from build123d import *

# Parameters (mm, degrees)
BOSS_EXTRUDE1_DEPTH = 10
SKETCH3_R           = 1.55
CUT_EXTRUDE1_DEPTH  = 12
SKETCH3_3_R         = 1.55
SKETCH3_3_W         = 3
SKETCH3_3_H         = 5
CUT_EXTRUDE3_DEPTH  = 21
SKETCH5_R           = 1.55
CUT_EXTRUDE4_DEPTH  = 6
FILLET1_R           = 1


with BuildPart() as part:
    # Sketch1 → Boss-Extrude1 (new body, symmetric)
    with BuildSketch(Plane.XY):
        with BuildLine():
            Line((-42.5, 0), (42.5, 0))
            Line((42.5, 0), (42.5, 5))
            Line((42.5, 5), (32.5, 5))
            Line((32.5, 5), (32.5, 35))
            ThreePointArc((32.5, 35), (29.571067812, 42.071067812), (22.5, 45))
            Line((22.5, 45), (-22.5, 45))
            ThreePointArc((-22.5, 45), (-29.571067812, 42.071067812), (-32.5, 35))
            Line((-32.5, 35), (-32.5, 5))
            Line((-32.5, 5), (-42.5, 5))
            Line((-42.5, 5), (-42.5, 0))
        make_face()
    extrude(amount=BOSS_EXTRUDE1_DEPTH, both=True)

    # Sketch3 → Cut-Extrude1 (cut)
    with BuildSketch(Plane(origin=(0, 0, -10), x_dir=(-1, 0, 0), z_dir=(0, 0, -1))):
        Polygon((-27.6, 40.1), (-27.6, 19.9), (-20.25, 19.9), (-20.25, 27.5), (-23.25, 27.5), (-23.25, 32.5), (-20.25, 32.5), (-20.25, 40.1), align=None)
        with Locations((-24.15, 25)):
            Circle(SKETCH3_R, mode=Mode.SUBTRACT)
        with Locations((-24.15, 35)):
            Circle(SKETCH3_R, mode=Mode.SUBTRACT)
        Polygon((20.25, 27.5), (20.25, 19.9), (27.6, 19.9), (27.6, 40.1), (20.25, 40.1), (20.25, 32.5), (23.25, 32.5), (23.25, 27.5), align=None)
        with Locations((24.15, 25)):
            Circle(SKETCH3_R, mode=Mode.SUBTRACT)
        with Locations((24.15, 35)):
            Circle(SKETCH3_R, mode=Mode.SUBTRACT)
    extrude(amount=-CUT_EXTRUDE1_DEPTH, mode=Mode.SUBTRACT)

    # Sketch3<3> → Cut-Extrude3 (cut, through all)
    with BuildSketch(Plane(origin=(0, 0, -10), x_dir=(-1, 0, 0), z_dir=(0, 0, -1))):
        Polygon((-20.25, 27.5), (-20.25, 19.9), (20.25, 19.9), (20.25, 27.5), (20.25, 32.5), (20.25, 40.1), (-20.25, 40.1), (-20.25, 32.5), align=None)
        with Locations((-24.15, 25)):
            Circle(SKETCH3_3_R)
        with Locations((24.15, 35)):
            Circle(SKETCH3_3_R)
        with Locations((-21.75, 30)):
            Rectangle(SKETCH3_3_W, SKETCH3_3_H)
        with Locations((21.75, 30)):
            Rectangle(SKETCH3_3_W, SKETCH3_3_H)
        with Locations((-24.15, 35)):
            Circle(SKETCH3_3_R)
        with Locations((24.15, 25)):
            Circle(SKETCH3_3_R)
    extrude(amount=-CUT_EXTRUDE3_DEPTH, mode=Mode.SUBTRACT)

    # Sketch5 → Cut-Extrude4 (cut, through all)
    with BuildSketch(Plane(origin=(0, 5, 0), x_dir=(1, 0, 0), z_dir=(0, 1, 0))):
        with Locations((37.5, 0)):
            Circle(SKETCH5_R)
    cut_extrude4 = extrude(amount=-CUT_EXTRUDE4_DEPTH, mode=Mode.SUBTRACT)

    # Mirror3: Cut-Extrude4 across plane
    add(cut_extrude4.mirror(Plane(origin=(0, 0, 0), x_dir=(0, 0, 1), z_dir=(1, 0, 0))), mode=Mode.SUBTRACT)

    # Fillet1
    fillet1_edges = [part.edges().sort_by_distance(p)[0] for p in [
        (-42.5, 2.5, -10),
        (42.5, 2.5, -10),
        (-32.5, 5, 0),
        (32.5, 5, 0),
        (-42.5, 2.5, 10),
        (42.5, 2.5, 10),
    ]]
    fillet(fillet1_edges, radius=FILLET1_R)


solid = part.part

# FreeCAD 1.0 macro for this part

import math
import FreeCAD as App
import Part
import Sketcher
from FreeCAD import Vector
Q = App.Units.Quantity


def edges_at(feature, points):
    """Names of the edges that pass closest to the given points."""
    edges = feature.Shape.Edges
    near = lambda p: min(range(len(edges)), key=lambda i: edges[i].distToShape(Part.Vertex(*p))[0])
    return sorted({f"Edge{near(p) + 1}" for p in points})

doc = App.newDocument("Part")
body = doc.addObject("PartDesign::Body", "Body")

# Sketch on XY plane
sketch1 = doc.addObject("Sketcher::SketchObject", "Sketch")
body.addObject(sketch1)
sketch1.AttachmentSupport = (doc.XY_Plane, [""])
sketch1.MapMode = "FlatFace"
sketch1.addGeometry(Part.LineSegment(Vector(-42, 0, 0), Vector(42, 0, 0)), False)
sketch1.addGeometry(Part.LineSegment(Vector(42, 0, 0), Vector(42, 5, 0)), False)
sketch1.addGeometry(Part.LineSegment(Vector(42, 5, 0), Vector(32, 5, 0)), False)
sketch1.addGeometry(Part.LineSegment(Vector(32, 5, 0), Vector(32, 35, 0)), False)
sketch1.addGeometry(Part.ArcOfCircle(Part.Circle(Vector(22, 35, 0), Vector(0, 0, 1), 10), math.radians(0), math.radians(90)), False)
sketch1.addGeometry(Part.LineSegment(Vector(22, 45, 0), Vector(-22, 45, 0)), False)
sketch1.addGeometry(Part.ArcOfCircle(Part.Circle(Vector(-22, 35, 0), Vector(0, 0, 1), 10), math.radians(90), math.radians(180)), False)
sketch1.addGeometry(Part.LineSegment(Vector(-32, 35, 0), Vector(-32, 5, 0)), False)
sketch1.addGeometry(Part.LineSegment(Vector(-32, 5, 0), Vector(-42, 5, 0)), False)
sketch1.addGeometry(Part.LineSegment(Vector(-42, 5, 0), Vector(-42, 0, 0)), False)
sketch1.addConstraint(Sketcher.Constraint("Coincident", 0, 2, 1, 1))
sketch1.addConstraint(Sketcher.Constraint("Coincident", 1, 2, 2, 1))
sketch1.addConstraint(Sketcher.Constraint("Coincident", 2, 2, 3, 1))
sketch1.addConstraint(Sketcher.Constraint("Tangent", 3, 2, 4, 1))
sketch1.addConstraint(Sketcher.Constraint("Tangent", 4, 2, 5, 1))
sketch1.addConstraint(Sketcher.Constraint("Tangent", 5, 2, 6, 1))
sketch1.addConstraint(Sketcher.Constraint("Tangent", 6, 2, 7, 1))
sketch1.addConstraint(Sketcher.Constraint("Coincident", 7, 2, 8, 1))
sketch1.addConstraint(Sketcher.Constraint("Coincident", 8, 2, 9, 1))
sketch1.addConstraint(Sketcher.Constraint("Coincident", 9, 2, 0, 1))
sketch1.addConstraint(Sketcher.Constraint("Horizontal", 0))
sketch1.addConstraint(Sketcher.Constraint("Vertical", 1))
sketch1.addConstraint(Sketcher.Constraint("Horizontal", 2))
sketch1.addConstraint(Sketcher.Constraint("Vertical", 3))
sketch1.addConstraint(Sketcher.Constraint("Horizontal", 5))
sketch1.addConstraint(Sketcher.Constraint("Vertical", 7))
sketch1.addConstraint(Sketcher.Constraint("Horizontal", 8))
sketch1.addConstraint(Sketcher.Constraint("Vertical", 9))
sketch1.addConstraint(Sketcher.Constraint("Equal", 4, 6))
sketch1.addConstraint(Sketcher.Constraint("Symmetric", 0, 2, 9, 2, -1, 1))
sketch1.addConstraint(Sketcher.Constraint("Symmetric", 2, 2, 7, 2, -2))
sketch1.addConstraint(Sketcher.Constraint("Radius", 4, Q("10 mm")))
sketch1.addConstraint(Sketcher.Constraint("DistanceX", 0, 1, 0, 2, Q("85 mm")))
sketch1.addConstraint(Sketcher.Constraint("DistanceX", 2, 2, 2, 1, Q("10 mm")))
sketch1.addConstraint(Sketcher.Constraint("DistanceY", 1, 1, 1, 2, Q("5 mm")))
sketch1.addConstraint(Sketcher.Constraint("DistanceY", 3, 1, 3, 2, Q("30 mm")))
pad1 = doc.addObject("PartDesign::Pad", "Pad")
body.addObject(pad1)
pad1.Profile = sketch1
pad1.Length = 20
pad1.Midplane = True

# Sketch on XY plane
sketch2 = doc.addObject("Sketcher::SketchObject", "Sketch001")
body.addObject(sketch2)
sketch2.AttachmentSupport = (doc.XY_Plane, [""])
sketch2.MapMode = "FlatFace"
sketch2.AttachmentOffset = App.Placement(Vector(0, 0, -10), App.Rotation())
sketch2.addGeometry(Part.LineSegment(Vector(27.6, 40.1, 0), Vector(27.6, 19.9, 0)), False)
sketch2.addGeometry(Part.LineSegment(Vector(27.6, 19.9, 0), Vector(20.2, 19.9, 0)), False)
sketch2.addGeometry(Part.LineSegment(Vector(20.2, 19.9, 0), Vector(20.2, 27.5, 0)), False)
sketch2.addGeometry(Part.LineSegment(Vector(20.2, 27.5, 0), Vector(23.2, 27.5, 0)), False)
sketch2.addGeometry(Part.LineSegment(Vector(23.2, 27.5, 0), Vector(23.2, 32.5, 0)), False)
sketch2.addGeometry(Part.LineSegment(Vector(23.2, 32.5, 0), Vector(20.2, 32.5, 0)), False)
sketch2.addGeometry(Part.LineSegment(Vector(20.2, 32.5, 0), Vector(20.2, 40.1, 0)), False)
sketch2.addGeometry(Part.LineSegment(Vector(20.2, 40.1, 0), Vector(27.6, 40.1, 0)), False)
sketch2.addGeometry(Part.Circle(Vector(24.1, 25, 0), Vector(0, 0, 1), 1.6), False)
sketch2.addGeometry(Part.Circle(Vector(24.1, 35, 0), Vector(0, 0, 1), 1.6), False)
sketch2.addGeometry(Part.LineSegment(Vector(-20.2, 27.5, 0), Vector(-20.2, 19.9, 0)), False)
sketch2.addGeometry(Part.LineSegment(Vector(-20.2, 19.9, 0), Vector(-27.6, 19.9, 0)), False)
sketch2.addGeometry(Part.LineSegment(Vector(-27.6, 19.9, 0), Vector(-27.6, 40.1, 0)), False)
sketch2.addGeometry(Part.LineSegment(Vector(-27.6, 40.1, 0), Vector(-20.2, 40.1, 0)), False)
sketch2.addGeometry(Part.LineSegment(Vector(-20.2, 40.1, 0), Vector(-20.2, 32.5, 0)), False)
sketch2.addGeometry(Part.LineSegment(Vector(-20.2, 32.5, 0), Vector(-23.2, 32.5, 0)), False)
sketch2.addGeometry(Part.LineSegment(Vector(-23.2, 32.5, 0), Vector(-23.2, 27.5, 0)), False)
sketch2.addGeometry(Part.LineSegment(Vector(-23.2, 27.5, 0), Vector(-20.2, 27.5, 0)), False)
sketch2.addGeometry(Part.Circle(Vector(-24.1, 25, 0), Vector(0, 0, 1), 1.6), False)
sketch2.addGeometry(Part.Circle(Vector(-24.1, 35, 0), Vector(0, 0, 1), 1.6), False)
sketch2.addConstraint(Sketcher.Constraint("Coincident", 0, 2, 1, 1))
sketch2.addConstraint(Sketcher.Constraint("Coincident", 1, 2, 2, 1))
sketch2.addConstraint(Sketcher.Constraint("Coincident", 2, 2, 3, 1))
sketch2.addConstraint(Sketcher.Constraint("Coincident", 3, 2, 4, 1))
sketch2.addConstraint(Sketcher.Constraint("Coincident", 4, 2, 5, 1))
sketch2.addConstraint(Sketcher.Constraint("Coincident", 5, 2, 6, 1))
sketch2.addConstraint(Sketcher.Constraint("Coincident", 6, 2, 7, 1))
sketch2.addConstraint(Sketcher.Constraint("Coincident", 7, 2, 0, 1))
sketch2.addConstraint(Sketcher.Constraint("Coincident", 10, 2, 11, 1))
sketch2.addConstraint(Sketcher.Constraint("Coincident", 11, 2, 12, 1))
sketch2.addConstraint(Sketcher.Constraint("Coincident", 12, 2, 13, 1))
sketch2.addConstraint(Sketcher.Constraint("Coincident", 13, 2, 14, 1))
sketch2.addConstraint(Sketcher.Constraint("Coincident", 14, 2, 15, 1))
sketch2.addConstraint(Sketcher.Constraint("Coincident", 15, 2, 16, 1))
sketch2.addConstraint(Sketcher.Constraint("Coincident", 16, 2, 17, 1))
sketch2.addConstraint(Sketcher.Constraint("Coincident", 17, 2, 10, 1))
sketch2.addConstraint(Sketcher.Constraint("Vertical", 0))
sketch2.addConstraint(Sketcher.Constraint("Horizontal", 1))
sketch2.addConstraint(Sketcher.Constraint("Vertical", 2))
sketch2.addConstraint(Sketcher.Constraint("Horizontal", 3))
sketch2.addConstraint(Sketcher.Constraint("Vertical", 4))
sketch2.addConstraint(Sketcher.Constraint("Horizontal", 5))
sketch2.addConstraint(Sketcher.Constraint("Vertical", 6))
sketch2.addConstraint(Sketcher.Constraint("Horizontal", 7))
sketch2.addConstraint(Sketcher.Constraint("Vertical", 10))
sketch2.addConstraint(Sketcher.Constraint("Horizontal", 11))
sketch2.addConstraint(Sketcher.Constraint("Vertical", 12))
sketch2.addConstraint(Sketcher.Constraint("Horizontal", 13))
sketch2.addConstraint(Sketcher.Constraint("Vertical", 14))
sketch2.addConstraint(Sketcher.Constraint("Horizontal", 15))
sketch2.addConstraint(Sketcher.Constraint("Vertical", 16))
sketch2.addConstraint(Sketcher.Constraint("Horizontal", 17))
sketch2.addConstraint(Sketcher.Constraint("Equal", 8, 9))
sketch2.addConstraint(Sketcher.Constraint("Equal", 9, 18))
sketch2.addConstraint(Sketcher.Constraint("Equal", 18, 19))
sketch2.addConstraint(Sketcher.Constraint("Symmetric", 8, 3, 18, 3, -2))
sketch2.addConstraint(Sketcher.Constraint("Symmetric", 9, 3, 19, 3, -2))
sketch2.addConstraint(Sketcher.Constraint("Symmetric", 1, 2, 10, 2, -2))
sketch2.addConstraint(Sketcher.Constraint("Symmetric", 7, 2, 12, 2, -2))
sketch2.addConstraint(Sketcher.Constraint("Symmetric", 5, 2, 14, 2, -2))
sketch2.addConstraint(Sketcher.Constraint("Symmetric", 3, 2, 16, 2, -2))
sketch2.addConstraint(Sketcher.Constraint("Vertical", 8, 3, 9, 3))
sketch2.addConstraint(Sketcher.Constraint("Vertical", 2, 2, 5, 2))
sketch2.addConstraint(Sketcher.Constraint("Equal", 2, 6))
sketch2.addConstraint(Sketcher.Constraint("Diameter", 8, Q("3.1 mm")))
sketch2.addConstraint(Sketcher.Constraint("DistanceX", 3, 1, 3, 2, Q("3 mm")))
sketch2.addConstraint(Sketcher.Constraint("DistanceY", 4, 1, 4, 2, Q("5 mm")))
sketch2.addConstraint(Sketcher.Constraint("DistanceY", 0, 2, 0, 1, Q("20.2 mm")))
sketch2.addConstraint(Sketcher.Constraint("DistanceY", -1, 1, 8, 3, Q("25 mm")))
sketch2.addConstraint(Sketcher.Constraint("DistanceY", -1, 1, 9, 3, Q("35 mm")))
sketch2.addConstraint(Sketcher.Constraint("DistanceX", 1, 2, 1, 1, Q("7.35 mm")))
sketch2.addConstraint(Sketcher.Constraint("DistanceX", -1, 1, 0, 2, Q("27.6 mm")))
sketch2.addConstraint(Sketcher.Constraint("DistanceY", -1, 1, 0, 2, Q("19.9 mm")))
sketch2.addConstraint(Sketcher.Constraint("DistanceX", 18, 3, 8, 3, Q("48.3 mm")))
pocket1 = doc.addObject("PartDesign::Pocket", "Pocket")
body.addObject(pocket1)
pocket1.Profile = sketch2
pocket1.Length = 12
pocket1.Reversed = True

# Sketch on XY plane
sketch3 = doc.addObject("Sketcher::SketchObject", "Sketch002")
body.addObject(sketch3)
sketch3.AttachmentSupport = (doc.XY_Plane, [""])
sketch3.MapMode = "FlatFace"
sketch3.AttachmentOffset = App.Placement(Vector(0, 0, -10), App.Rotation())
sketch3.addGeometry(Part.LineSegment(Vector(20.2, 19.9, 0), Vector(-20.2, 19.9, 0)), False)
sketch3.addGeometry(Part.LineSegment(Vector(-20.2, 19.9, 0), Vector(-20.2, 27.5, 0)), False)
sketch3.addGeometry(Part.LineSegment(Vector(-20.2, 27.5, 0), Vector(-23.2, 27.5, 0)), False)
sketch3.addGeometry(Part.LineSegment(Vector(-23.2, 27.5, 0), Vector(-23.2, 32.5, 0)), False)
sketch3.addGeometry(Part.LineSegment(Vector(-23.2, 32.5, 0), Vector(-20.2, 32.5, 0)), False)
sketch3.addGeometry(Part.LineSegment(Vector(-20.2, 32.5, 0), Vector(-20.2, 40.1, 0)), False)
sketch3.addGeometry(Part.LineSegment(Vector(-20.2, 40.1, 0), Vector(20.2, 40.1, 0)), False)
sketch3.addGeometry(Part.LineSegment(Vector(20.2, 40.1, 0), Vector(20.2, 32.5, 0)), False)
sketch3.addGeometry(Part.LineSegment(Vector(20.2, 32.5, 0), Vector(23.2, 32.5, 0)), False)
sketch3.addGeometry(Part.LineSegment(Vector(23.2, 32.5, 0), Vector(23.2, 27.5, 0)), False)
sketch3.addGeometry(Part.LineSegment(Vector(23.2, 27.5, 0), Vector(20.2, 27.5, 0)), False)
sketch3.addGeometry(Part.LineSegment(Vector(20.2, 27.5, 0), Vector(20.2, 19.9, 0)), False)
sketch3.addGeometry(Part.Circle(Vector(24.1, 25, 0), Vector(0, 0, 1), 1.6), False)
sketch3.addGeometry(Part.Circle(Vector(-24.1, 35, 0), Vector(0, 0, 1), 1.6), False)
sketch3.addGeometry(Part.Circle(Vector(24.1, 35, 0), Vector(0, 0, 1), 1.6), False)
sketch3.addGeometry(Part.Circle(Vector(-24.1, 25, 0), Vector(0, 0, 1), 1.6), False)
sketch3.addConstraint(Sketcher.Constraint("Coincident", 0, 2, 1, 1))
sketch3.addConstraint(Sketcher.Constraint("Coincident", 1, 2, 2, 1))
sketch3.addConstraint(Sketcher.Constraint("Coincident", 2, 2, 3, 1))
sketch3.addConstraint(Sketcher.Constraint("Coincident", 3, 2, 4, 1))
sketch3.addConstraint(Sketcher.Constraint("Coincident", 4, 2, 5, 1))
sketch3.addConstraint(Sketcher.Constraint("Coincident", 5, 2, 6, 1))
sketch3.addConstraint(Sketcher.Constraint("Coincident", 6, 2, 7, 1))
sketch3.addConstraint(Sketcher.Constraint("Coincident", 7, 2, 8, 1))
sketch3.addConstraint(Sketcher.Constraint("Coincident", 8, 2, 9, 1))
sketch3.addConstraint(Sketcher.Constraint("Coincident", 9, 2, 10, 1))
sketch3.addConstraint(Sketcher.Constraint("Coincident", 10, 2, 11, 1))
sketch3.addConstraint(Sketcher.Constraint("Coincident", 11, 2, 0, 1))
sketch3.addConstraint(Sketcher.Constraint("Horizontal", 0))
sketch3.addConstraint(Sketcher.Constraint("Vertical", 1))
sketch3.addConstraint(Sketcher.Constraint("Horizontal", 2))
sketch3.addConstraint(Sketcher.Constraint("Vertical", 3))
sketch3.addConstraint(Sketcher.Constraint("Horizontal", 4))
sketch3.addConstraint(Sketcher.Constraint("Vertical", 5))
sketch3.addConstraint(Sketcher.Constraint("Horizontal", 6))
sketch3.addConstraint(Sketcher.Constraint("Vertical", 7))
sketch3.addConstraint(Sketcher.Constraint("Horizontal", 8))
sketch3.addConstraint(Sketcher.Constraint("Vertical", 9))
sketch3.addConstraint(Sketcher.Constraint("Horizontal", 10))
sketch3.addConstraint(Sketcher.Constraint("Vertical", 11))
sketch3.addConstraint(Sketcher.Constraint("Equal", 12, 13))
sketch3.addConstraint(Sketcher.Constraint("Equal", 13, 14))
sketch3.addConstraint(Sketcher.Constraint("Equal", 14, 15))
sketch3.addConstraint(Sketcher.Constraint("Symmetric", 13, 3, 14, 3, -2))
sketch3.addConstraint(Sketcher.Constraint("Symmetric", 12, 3, 15, 3, -2))
sketch3.addConstraint(Sketcher.Constraint("Symmetric", 4, 2, 7, 2, -2))
sketch3.addConstraint(Sketcher.Constraint("Symmetric", 2, 2, 9, 2, -2))
sketch3.addConstraint(Sketcher.Constraint("Vertical", 12, 3, 14, 3))
sketch3.addConstraint(Sketcher.Constraint("Vertical", 1, 2, 4, 2))
sketch3.addConstraint(Sketcher.Constraint("Vertical", 7, 2, 10, 2))
sketch3.addConstraint(Sketcher.Constraint("Equal", 1, 5))
sketch3.addConstraint(Sketcher.Constraint("Diameter", 12, Q("3.1 mm")))
sketch3.addConstraint(Sketcher.Constraint("DistanceX", 2, 2, 2, 1, Q("3 mm")))
sketch3.addConstraint(Sketcher.Constraint("DistanceY", 3, 1, 3, 2, Q("5 mm")))
sketch3.addConstraint(Sketcher.Constraint("DistanceX", 0, 2, 0, 1, Q("40.5 mm")))
sketch3.addConstraint(Sketcher.Constraint("DistanceY", 1, 1, 1, 2, Q("7.6 mm")))
sketch3.addConstraint(Sketcher.Constraint("DistanceY", -1, 1, 12, 3, Q("25 mm")))
sketch3.addConstraint(Sketcher.Constraint("DistanceY", -1, 1, 13, 3, Q("35 mm")))
sketch3.addConstraint(Sketcher.Constraint("DistanceY", -1, 1, 0, 2, Q("19.9 mm")))
sketch3.addConstraint(Sketcher.Constraint("DistanceX", 13, 3, 12, 3, Q("48.3 mm")))
pocket2 = doc.addObject("PartDesign::Pocket", "Pocket001")
body.addObject(pocket2)
pocket2.Profile = sketch3
pocket2.Type = "ThroughAll"
pocket2.Reversed = True

# Sketch on XZ plane
sketch4 = doc.addObject("Sketcher::SketchObject", "Sketch003")
body.addObject(sketch4)
sketch4.AttachmentSupport = (doc.XZ_Plane, [""])
sketch4.MapMode = "FlatFace"
sketch4.AttachmentOffset = App.Placement(Vector(0, 0, -5), App.Rotation())
sketch4.addGeometry(Part.Circle(Vector(37.5, 0, 0), Vector(0, 0, 1), 1.6), False)
sketch4.addConstraint(Sketcher.Constraint("PointOnObject", 0, 3, -1))
sketch4.addConstraint(Sketcher.Constraint("Diameter", 0, Q("3.1 mm")))
sketch4.addConstraint(Sketcher.Constraint("DistanceX", -1, 1, 0, 3, Q("37.5 mm")))
pocket3 = doc.addObject("PartDesign::Pocket", "Pocket002")
body.addObject(pocket3)
pocket3.Profile = sketch4
pocket3.Type = "ThroughAll"
pocket3.Reversed = True
doc.recompute()

mirrored = doc.addObject("PartDesign::Mirrored", "Mirrored")
body.addObject(mirrored)
mirrored.Originals = [pocket3]
mirrored.MirrorPlane = (doc.YZ_Plane, [""])
body.Tip = mirrored
doc.recompute()

fillet = doc.addObject("PartDesign::Fillet", "Fillet")
body.addObject(fillet)
fillet.Base = (mirrored, edges_at(mirrored, [
    (-42.5, 2.5, -10),
    (42.5, 2.5, -10),
    (-32.5, 5, 0),
    (32.5, 5, 0),
    (-42.5, 2.5, 10),
    (42.5, 2.5, 10),
]))
fillet.Radius = 1

doc.recompute()
